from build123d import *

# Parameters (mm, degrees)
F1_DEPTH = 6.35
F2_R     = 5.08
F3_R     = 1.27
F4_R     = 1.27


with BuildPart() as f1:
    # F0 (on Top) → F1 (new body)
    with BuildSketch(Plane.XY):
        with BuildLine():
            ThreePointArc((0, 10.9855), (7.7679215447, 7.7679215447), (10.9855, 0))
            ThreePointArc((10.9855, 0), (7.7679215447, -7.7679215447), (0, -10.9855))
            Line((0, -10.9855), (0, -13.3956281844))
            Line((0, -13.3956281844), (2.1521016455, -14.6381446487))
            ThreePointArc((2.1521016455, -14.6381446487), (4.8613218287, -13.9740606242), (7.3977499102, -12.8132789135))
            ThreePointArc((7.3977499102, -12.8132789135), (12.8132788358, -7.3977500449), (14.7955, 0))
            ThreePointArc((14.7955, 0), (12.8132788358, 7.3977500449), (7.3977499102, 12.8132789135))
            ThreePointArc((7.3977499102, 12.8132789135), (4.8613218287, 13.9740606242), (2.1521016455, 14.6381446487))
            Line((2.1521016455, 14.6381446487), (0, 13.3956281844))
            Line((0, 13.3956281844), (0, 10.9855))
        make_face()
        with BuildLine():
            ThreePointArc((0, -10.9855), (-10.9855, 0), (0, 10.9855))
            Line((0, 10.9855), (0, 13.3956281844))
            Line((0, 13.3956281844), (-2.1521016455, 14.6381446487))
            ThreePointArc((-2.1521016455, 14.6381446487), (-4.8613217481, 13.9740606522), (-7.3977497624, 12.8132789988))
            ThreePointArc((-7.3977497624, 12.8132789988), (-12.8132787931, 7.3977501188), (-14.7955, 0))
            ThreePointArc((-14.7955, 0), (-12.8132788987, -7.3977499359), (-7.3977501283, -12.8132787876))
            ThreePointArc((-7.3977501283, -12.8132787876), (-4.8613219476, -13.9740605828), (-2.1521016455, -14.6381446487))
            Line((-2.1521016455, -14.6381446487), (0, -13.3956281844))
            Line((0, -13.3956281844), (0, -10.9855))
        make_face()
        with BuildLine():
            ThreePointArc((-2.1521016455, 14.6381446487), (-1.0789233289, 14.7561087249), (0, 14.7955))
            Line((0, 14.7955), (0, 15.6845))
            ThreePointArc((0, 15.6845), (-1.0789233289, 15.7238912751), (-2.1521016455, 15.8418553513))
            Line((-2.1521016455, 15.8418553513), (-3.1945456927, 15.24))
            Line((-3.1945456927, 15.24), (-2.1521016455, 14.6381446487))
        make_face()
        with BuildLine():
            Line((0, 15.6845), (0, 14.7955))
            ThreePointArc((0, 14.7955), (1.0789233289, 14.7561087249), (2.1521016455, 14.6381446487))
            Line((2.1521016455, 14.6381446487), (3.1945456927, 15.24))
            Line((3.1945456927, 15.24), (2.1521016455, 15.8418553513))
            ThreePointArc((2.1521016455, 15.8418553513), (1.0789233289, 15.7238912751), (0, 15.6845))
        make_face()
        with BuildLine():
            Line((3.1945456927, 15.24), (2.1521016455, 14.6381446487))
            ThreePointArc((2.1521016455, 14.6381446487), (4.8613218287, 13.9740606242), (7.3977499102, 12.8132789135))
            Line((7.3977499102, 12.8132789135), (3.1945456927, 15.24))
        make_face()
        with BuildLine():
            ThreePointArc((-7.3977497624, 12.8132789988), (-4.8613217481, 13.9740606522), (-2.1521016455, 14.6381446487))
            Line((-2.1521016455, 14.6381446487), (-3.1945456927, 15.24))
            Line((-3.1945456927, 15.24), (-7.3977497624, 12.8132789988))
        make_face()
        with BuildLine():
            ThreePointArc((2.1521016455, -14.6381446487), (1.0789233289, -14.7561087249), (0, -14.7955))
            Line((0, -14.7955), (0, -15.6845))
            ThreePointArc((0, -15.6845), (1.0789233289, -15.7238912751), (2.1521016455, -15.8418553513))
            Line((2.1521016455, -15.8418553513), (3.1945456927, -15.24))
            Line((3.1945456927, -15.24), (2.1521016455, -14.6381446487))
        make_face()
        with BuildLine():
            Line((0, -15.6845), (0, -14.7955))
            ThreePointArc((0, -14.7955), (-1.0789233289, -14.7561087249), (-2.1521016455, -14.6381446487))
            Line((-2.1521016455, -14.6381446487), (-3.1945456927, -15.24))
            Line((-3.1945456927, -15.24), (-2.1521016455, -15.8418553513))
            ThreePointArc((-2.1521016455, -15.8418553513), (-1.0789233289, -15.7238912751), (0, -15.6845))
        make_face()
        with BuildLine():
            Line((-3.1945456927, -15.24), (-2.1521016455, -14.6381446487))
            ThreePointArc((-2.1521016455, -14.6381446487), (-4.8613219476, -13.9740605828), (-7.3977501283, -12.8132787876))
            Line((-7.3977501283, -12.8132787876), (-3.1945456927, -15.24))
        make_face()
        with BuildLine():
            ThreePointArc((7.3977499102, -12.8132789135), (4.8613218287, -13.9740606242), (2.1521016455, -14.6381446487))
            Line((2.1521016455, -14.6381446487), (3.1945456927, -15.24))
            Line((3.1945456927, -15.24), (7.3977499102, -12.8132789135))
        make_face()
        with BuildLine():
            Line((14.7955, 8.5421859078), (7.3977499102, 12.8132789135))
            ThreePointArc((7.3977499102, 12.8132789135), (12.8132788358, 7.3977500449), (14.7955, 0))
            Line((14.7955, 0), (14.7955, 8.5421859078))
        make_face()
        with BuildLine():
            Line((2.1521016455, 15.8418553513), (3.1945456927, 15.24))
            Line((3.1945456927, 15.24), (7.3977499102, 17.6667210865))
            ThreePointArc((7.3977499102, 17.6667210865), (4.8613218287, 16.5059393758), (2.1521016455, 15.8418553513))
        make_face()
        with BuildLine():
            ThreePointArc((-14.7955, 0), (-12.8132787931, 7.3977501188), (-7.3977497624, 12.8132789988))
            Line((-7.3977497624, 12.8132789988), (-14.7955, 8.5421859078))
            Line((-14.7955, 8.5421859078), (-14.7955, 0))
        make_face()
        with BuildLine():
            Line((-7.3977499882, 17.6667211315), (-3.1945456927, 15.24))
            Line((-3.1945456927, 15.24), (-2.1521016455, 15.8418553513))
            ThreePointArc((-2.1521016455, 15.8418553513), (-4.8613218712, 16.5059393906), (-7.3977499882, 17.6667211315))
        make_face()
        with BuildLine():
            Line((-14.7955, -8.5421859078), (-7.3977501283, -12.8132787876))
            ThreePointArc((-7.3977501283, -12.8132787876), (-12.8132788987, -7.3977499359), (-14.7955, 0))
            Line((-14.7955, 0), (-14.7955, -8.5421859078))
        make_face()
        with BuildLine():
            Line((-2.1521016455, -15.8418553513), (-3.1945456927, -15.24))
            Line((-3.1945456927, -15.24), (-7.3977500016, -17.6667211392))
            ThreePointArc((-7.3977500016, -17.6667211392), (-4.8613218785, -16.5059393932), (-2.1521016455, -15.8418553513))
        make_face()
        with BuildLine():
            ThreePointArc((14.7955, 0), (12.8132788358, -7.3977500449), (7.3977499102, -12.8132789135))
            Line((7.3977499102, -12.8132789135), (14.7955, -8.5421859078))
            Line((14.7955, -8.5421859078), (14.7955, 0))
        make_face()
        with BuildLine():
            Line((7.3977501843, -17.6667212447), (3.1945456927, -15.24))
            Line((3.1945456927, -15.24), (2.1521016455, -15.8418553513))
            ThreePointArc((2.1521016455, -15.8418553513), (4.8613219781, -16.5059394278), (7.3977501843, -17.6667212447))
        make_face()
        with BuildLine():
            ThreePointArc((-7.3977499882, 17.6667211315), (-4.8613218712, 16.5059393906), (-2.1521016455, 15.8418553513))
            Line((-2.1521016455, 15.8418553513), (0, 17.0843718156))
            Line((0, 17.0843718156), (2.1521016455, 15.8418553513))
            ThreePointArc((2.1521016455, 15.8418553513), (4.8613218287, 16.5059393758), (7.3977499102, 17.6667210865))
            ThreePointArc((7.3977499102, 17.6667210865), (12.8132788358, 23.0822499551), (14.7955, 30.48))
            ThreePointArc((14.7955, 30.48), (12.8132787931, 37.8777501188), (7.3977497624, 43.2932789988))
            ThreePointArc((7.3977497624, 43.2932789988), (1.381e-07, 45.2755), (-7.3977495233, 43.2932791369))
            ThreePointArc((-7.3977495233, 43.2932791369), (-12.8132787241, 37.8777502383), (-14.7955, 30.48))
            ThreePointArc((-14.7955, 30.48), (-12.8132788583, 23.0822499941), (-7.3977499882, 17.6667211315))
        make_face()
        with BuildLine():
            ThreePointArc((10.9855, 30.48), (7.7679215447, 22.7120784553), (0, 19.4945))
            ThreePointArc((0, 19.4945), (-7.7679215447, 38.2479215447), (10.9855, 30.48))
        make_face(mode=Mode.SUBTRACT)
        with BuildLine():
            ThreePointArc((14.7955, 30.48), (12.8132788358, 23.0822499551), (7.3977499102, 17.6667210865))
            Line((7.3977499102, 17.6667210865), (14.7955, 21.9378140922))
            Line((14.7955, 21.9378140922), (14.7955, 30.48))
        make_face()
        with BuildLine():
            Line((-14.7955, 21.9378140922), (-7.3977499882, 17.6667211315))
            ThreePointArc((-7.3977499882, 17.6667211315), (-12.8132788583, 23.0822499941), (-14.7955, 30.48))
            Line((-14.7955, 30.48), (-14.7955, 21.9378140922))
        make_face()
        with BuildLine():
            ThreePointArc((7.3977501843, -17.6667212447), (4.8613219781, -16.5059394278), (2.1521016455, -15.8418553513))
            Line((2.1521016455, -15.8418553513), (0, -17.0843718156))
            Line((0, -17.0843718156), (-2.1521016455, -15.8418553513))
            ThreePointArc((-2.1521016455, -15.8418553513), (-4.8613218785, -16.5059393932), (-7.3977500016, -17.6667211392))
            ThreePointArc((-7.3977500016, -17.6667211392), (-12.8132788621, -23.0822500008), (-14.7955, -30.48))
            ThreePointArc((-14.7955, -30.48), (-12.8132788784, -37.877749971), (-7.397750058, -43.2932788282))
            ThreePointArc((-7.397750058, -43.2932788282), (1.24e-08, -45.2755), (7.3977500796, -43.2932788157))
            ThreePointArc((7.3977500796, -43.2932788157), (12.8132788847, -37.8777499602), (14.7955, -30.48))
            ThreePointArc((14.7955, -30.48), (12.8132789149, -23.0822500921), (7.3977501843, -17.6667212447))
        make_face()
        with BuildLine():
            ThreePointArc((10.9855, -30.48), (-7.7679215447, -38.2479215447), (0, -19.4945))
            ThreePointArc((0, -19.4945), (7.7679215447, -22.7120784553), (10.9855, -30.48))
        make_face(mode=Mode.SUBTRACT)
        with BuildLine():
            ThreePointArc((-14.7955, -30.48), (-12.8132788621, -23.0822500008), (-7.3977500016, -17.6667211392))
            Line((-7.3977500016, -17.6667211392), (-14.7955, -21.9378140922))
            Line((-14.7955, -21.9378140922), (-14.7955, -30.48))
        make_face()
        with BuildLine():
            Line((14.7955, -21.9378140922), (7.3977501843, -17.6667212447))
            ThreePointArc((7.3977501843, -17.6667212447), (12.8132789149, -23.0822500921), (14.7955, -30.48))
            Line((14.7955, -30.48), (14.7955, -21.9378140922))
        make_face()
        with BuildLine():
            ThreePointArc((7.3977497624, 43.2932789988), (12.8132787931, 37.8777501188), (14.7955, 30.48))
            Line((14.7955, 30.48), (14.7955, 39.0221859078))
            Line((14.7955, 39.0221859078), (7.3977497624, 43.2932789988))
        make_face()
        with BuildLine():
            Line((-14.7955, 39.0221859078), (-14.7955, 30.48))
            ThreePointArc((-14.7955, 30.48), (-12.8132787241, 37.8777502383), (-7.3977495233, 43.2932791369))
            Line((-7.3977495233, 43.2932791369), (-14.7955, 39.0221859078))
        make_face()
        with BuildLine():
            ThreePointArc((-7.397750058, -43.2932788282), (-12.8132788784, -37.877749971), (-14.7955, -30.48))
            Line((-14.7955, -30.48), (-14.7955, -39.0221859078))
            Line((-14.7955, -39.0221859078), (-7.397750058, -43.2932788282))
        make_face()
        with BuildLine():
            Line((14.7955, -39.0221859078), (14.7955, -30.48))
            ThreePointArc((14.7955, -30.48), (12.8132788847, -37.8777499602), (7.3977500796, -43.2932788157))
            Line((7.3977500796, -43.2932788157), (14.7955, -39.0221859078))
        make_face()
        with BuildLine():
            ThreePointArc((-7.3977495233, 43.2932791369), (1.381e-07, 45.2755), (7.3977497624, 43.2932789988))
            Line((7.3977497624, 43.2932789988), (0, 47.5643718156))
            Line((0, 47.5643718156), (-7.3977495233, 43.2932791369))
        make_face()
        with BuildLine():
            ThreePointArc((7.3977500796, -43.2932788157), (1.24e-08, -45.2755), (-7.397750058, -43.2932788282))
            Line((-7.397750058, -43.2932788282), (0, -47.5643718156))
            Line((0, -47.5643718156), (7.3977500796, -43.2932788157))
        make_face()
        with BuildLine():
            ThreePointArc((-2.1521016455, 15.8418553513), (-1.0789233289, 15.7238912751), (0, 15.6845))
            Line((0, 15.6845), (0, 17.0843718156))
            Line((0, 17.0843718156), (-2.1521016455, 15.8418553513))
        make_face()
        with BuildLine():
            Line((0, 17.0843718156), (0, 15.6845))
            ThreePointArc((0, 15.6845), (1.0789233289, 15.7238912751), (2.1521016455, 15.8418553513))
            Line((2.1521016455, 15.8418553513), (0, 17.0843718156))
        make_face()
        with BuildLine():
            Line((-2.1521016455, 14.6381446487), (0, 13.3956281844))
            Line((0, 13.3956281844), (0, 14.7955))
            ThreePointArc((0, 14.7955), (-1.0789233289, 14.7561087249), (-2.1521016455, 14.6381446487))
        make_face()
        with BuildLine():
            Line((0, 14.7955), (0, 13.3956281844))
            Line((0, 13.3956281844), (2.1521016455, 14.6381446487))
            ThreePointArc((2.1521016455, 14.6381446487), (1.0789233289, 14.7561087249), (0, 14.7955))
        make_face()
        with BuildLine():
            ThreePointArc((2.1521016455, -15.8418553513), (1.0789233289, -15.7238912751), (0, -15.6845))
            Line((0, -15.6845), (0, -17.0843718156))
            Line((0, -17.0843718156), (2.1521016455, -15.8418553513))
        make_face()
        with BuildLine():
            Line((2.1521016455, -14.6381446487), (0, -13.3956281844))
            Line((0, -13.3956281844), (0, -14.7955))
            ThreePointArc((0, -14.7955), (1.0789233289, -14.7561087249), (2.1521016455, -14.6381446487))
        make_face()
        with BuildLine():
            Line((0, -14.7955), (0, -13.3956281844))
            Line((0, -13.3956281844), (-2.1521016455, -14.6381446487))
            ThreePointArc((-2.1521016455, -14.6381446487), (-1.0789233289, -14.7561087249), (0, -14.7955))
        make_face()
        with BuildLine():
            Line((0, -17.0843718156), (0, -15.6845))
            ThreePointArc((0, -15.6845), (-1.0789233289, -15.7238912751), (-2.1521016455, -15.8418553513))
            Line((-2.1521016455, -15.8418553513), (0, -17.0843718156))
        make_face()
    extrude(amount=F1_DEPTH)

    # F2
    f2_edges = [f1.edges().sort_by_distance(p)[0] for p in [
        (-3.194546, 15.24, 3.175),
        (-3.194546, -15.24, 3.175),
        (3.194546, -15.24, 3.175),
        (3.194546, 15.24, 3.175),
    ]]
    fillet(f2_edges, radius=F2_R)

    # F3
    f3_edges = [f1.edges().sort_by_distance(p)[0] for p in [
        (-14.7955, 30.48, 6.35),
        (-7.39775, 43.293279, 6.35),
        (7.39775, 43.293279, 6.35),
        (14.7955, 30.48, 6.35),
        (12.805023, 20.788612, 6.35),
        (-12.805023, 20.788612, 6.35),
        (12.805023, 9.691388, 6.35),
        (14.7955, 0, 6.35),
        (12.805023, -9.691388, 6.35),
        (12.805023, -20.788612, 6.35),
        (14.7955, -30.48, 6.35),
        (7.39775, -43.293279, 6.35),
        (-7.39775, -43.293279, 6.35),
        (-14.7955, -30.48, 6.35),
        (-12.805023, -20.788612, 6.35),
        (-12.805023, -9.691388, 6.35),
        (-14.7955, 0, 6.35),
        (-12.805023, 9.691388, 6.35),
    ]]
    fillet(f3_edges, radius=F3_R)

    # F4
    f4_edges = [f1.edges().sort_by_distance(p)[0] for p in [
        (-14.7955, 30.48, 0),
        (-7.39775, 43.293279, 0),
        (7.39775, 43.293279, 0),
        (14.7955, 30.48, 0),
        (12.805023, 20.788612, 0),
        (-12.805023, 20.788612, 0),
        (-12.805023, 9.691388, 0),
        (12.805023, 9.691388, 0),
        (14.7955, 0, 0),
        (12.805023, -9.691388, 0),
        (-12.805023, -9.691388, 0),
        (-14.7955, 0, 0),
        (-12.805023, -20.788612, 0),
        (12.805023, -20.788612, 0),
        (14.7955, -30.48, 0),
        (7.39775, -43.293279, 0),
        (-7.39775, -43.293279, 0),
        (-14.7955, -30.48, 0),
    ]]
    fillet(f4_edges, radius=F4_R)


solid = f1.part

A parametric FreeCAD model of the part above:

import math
import FreeCAD as App
import Part
import Sketcher
from FreeCAD import Vector
Q = App.Units.Quantity


def edges_at(feature, points):
    """Names of the edges that pass closest to the given points."""
    edges = feature.Shape.Edges
    near = lambda p: min(range(len(edges)), key=lambda i: edges[i].distToShape(Part.Vertex(*p))[0])
    return sorted({f"Edge{near(p) + 1}" for p in points})

doc = App.newDocument("Part")
body = doc.addObject("PartDesign::Body", "Body")

# Sketch on XY plane
sketch1 = doc.addObject("Sketcher::SketchObject", "Sketch")
body.addObject(sketch1)
sketch1.AttachmentSupport = (doc.XY_Plane, [""])
sketch1.MapMode = "FlatFace"
sketch1.addGeometry([
    Part.LineSegment(Vector(14.8, -21.9, 0), Vector(7.4, -17.7, 0)),  # 0
    Part.LineSegment(Vector(7.4, -17.7, 0), Vector(3.2, -15.2, 0)),  # 1
    Part.LineSegment(Vector(3.2, -15.2, 0), Vector(7.4, -12.8, 0)),  # 2
    Part.LineSegment(Vector(7.4, -12.8, 0), Vector(14.8, -8.5, 0)),  # 3
    Part.LineSegment(Vector(14.8, -8.5, 0), Vector(14.8, 8.5, 0)),  # 4
    Part.LineSegment(Vector(14.8, 8.5, 0), Vector(7.4, 12.8, 0)),  # 5
    Part.LineSegment(Vector(7.4, 12.8, 0), Vector(3.2, 15.2, 0)),  # 6
    Part.LineSegment(Vector(3.2, 15.2, 0), Vector(7.4, 17.7, 0)),  # 7
    Part.LineSegment(Vector(7.4, 17.7, 0), Vector(14.8, 21.9, 0)),  # 8
    Part.LineSegment(Vector(14.8, 21.9, 0), Vector(14.8, 39, 0)),  # 9
    Part.LineSegment(Vector(14.8, 39, 0), Vector(7.4, 43.3, 0)),  # 10
    Part.LineSegment(Vector(7.4, 43.3, 0), Vector(0, 47.6, 0)),  # 11
    Part.LineSegment(Vector(0, 47.6, 0), Vector(-7.4, 43.3, 0)),  # 12
    Part.LineSegment(Vector(-7.4, 43.3, 0), Vector(-14.8, 39, 0)),  # 13
    Part.LineSegment(Vector(-14.8, 39, 0), Vector(-14.8, 21.9, 0)),  # 14
    Part.LineSegment(Vector(-14.8, 21.9, 0), Vector(-7.4, 17.7, 0)),  # 15
    Part.LineSegment(Vector(-7.4, 17.7, 0), Vector(-3.2, 15.2, 0)),  # 16
    Part.LineSegment(Vector(-3.2, 15.2, 0), Vector(-7.4, 12.8, 0)),  # 17
    Part.LineSegment(Vector(-7.4, 12.8, 0), Vector(-14.8, 8.5, 0)),  # 18
    Part.LineSegment(Vector(-14.8, 8.5, 0), Vector(-14.8, -8.5, 0)),  # 19
    Part.LineSegment(Vector(-14.8, -8.5, 0), Vector(-7.4, -12.8, 0)),  # 20
    Part.LineSegment(Vector(-7.4, -12.8, 0), Vector(-3.2, -15.2, 0)),  # 21
    Part.LineSegment(Vector(-3.2, -15.2, 0), Vector(-7.4, -17.7, 0)),  # 22
    Part.LineSegment(Vector(-7.4, -17.7, 0), Vector(-14.8, -21.9, 0)),  # 23
    Part.LineSegment(Vector(-14.8, -21.9, 0), Vector(-14.8, -39, 0)),  # 24
    Part.LineSegment(Vector(-14.8, -39, 0), Vector(-7.4, -43.3, 0)),  # 25
    Part.LineSegment(Vector(-7.4, -43.3, 0), Vector(0, -47.6, 0)),  # 26
    Part.LineSegment(Vector(0, -47.6, 0), Vector(7.4, -43.3, 0)),  # 27
    Part.LineSegment(Vector(7.4, -43.3, 0), Vector(14.8, -39, 0)),  # 28
    Part.LineSegment(Vector(14.8, -39, 0), Vector(14.8, -21.9, 0)),  # 29
    Part.ArcOfCircle(Part.Circle(Vector(0, 0, 0), Vector(0, 0, 1), 11), math.radians(-90), math.radians(0)),  # 30
    Part.ArcOfCircle(Part.Circle(Vector(0, 0, 0), Vector(0, 0, 1), 11), math.radians(90), math.radians(270)),  # 31
    Part.ArcOfCircle(Part.Circle(Vector(0, 0, 0), Vector(0, 0, 1), 11), math.radians(0), math.radians(90)),  # 32
    Part.ArcOfCircle(Part.Circle(Vector(0, -30.5, 0), Vector(0, 0, 1), 11), math.radians(0), math.radians(90)),  # 33
    Part.ArcOfCircle(Part.Circle(Vector(0, -30.5, 0), Vector(0, 0, 1), 11), math.radians(90), math.radians(360)),  # 34
    Part.ArcOfCircle(Part.Circle(Vector(0, 30.5, 0), Vector(0, 0, 1), 11), math.radians(0), math.radians(270)),  # 35
    Part.ArcOfCircle(Part.Circle(Vector(0, 30.5, 0), Vector(0, 0, 1), 11), math.radians(-90), math.radians(0)),  # 36
], False)
sketch1.addConstraint([
    Sketcher.Constraint("Coincident", 0, 2, 1, 1),
    Sketcher.Constraint("Coincident", 1, 2, 2, 1),
    Sketcher.Constraint("Coincident", 2, 2, 3, 1),
    Sketcher.Constraint("Coincident", 3, 2, 4, 1),
    Sketcher.Constraint("Coincident", 4, 2, 5, 1),
    Sketcher.Constraint("Coincident", 5, 2, 6, 1),
    Sketcher.Constraint("Coincident", 6, 2, 7, 1),
    Sketcher.Constraint("Coincident", 7, 2, 8, 1),
    Sketcher.Constraint("Coincident", 8, 2, 9, 1),
    Sketcher.Constraint("Coincident", 9, 2, 10, 1),
    Sketcher.Constraint("Coincident", 10, 2, 11, 1),
    Sketcher.Constraint("Coincident", 11, 2, 12, 1),
    Sketcher.Constraint("Coincident", 12, 2, 13, 1),
    Sketcher.Constraint("Coincident", 13, 2, 14, 1),
    Sketcher.Constraint("Coincident", 14, 2, 15, 1),
    Sketcher.Constraint("Coincident", 15, 2, 16, 1),
    Sketcher.Constraint("Coincident", 16, 2, 17, 1),
    Sketcher.Constraint("Coincident", 17, 2, 18, 1),
    Sketcher.Constraint("Coincident", 18, 2, 19, 1),
    Sketcher.Constraint("Coincident", 19, 2, 20, 1),
    Sketcher.Constraint("Coincident", 20, 2, 21, 1),
    Sketcher.Constraint("Coincident", 21, 2, 22, 1),
    Sketcher.Constraint("Coincident", 22, 2, 23, 1),
    Sketcher.Constraint("Coincident", 23, 2, 24, 1),
    Sketcher.Constraint("Coincident", 24, 2, 25, 1),
    Sketcher.Constraint("Coincident", 25, 2, 26, 1),
    Sketcher.Constraint("Coincident", 26, 2, 27, 1),
    Sketcher.Constraint("Coincident", 27, 2, 28, 1),
    Sketcher.Constraint("Coincident", 28, 2, 29, 1),
    Sketcher.Constraint("Coincident", 29, 2, 0, 1),
    Sketcher.Constraint("Tangent", 30, 1, 31, 2),
    Sketcher.Constraint("Tangent", 31, 1, 32, 2),
    Sketcher.Constraint("Tangent", 32, 1, 30, 2),
    Sketcher.Constraint("Tangent", 33, 1, 34, 2),
    Sketcher.Constraint("Coincident", 34, 1, 33, 2),
    Sketcher.Constraint("Tangent", 35, 1, 36, 2),
    Sketcher.Constraint("Coincident", 36, 1, 35, 2),
    Sketcher.Constraint("Vertical", 4),
    Sketcher.Constraint("Vertical", 9),
    Sketcher.Constraint("Vertical", 14),
    Sketcher.Constraint("Vertical", 19),
    Sketcher.Constraint("Vertical", 24),
    Sketcher.Constraint("Vertical", 29),
    Sketcher.Constraint("Coincident", 30, 3, -1, 1),
    Sketcher.Constraint("Equal", 32, 33),
    Sketcher.Constraint("Equal", 34, 35),
    Sketcher.Constraint("Symmetric", 33, 3, 35, 3, -1, 1),
    Sketcher.Constraint("Symmetric", 0, 2, 15, 2, -1, 1),
    Sketcher.Constraint("Symmetric", 1, 2, 16, 2, -1, 1),
    Sketcher.Constraint("Symmetric", 2, 2, 17, 2, -1, 1),
    Sketcher.Constraint("Symmetric", 3, 2, 18, 2, -1, 1),
    Sketcher.Constraint("Symmetric", 5, 2, 20, 2, -1, 1),
    Sketcher.Constraint("Symmetric", 6, 2, 21, 2, -1, 1),
    Sketcher.Constraint("Symmetric", 7, 2, 22, 2, -1, 1),
    Sketcher.Constraint("Symmetric", 8, 2, 23, 2, -1, 1),
    Sketcher.Constraint("Symmetric", 10, 2, 25, 2, -1, 1),
    Sketcher.Constraint("Symmetric", 11, 2, 26, 2, -1, 1),
    Sketcher.Constraint("Symmetric", 12, 2, 27, 2, -1, 1),
    Sketcher.Constraint("Symmetric", 13, 2, 28, 2, -1, 1),
    Sketcher.Constraint("Symmetric", 10, 2, 12, 2, -2),
    Sketcher.Constraint("Symmetric", 9, 2, 13, 2, -2),
    Sketcher.Constraint("Symmetric", 7, 2, 15, 2, -2),
    Sketcher.Constraint("Symmetric", 6, 2, 16, 2, -2),
    Sketcher.Constraint("Symmetric", 5, 2, 17, 2, -2),
    Sketcher.Constraint("Symmetric", 33, 1, 35, 1, -1),
    Sketcher.Constraint("PointOnObject", 11, 2, -2),
    Sketcher.Constraint("PointOnObject", 30, 1, -2),
    Sketcher.Constraint("PointOnObject", 31, 1, -2),
    Sketcher.Constraint("PointOnObject", 32, 1, -1),
    Sketcher.Constraint("PointOnObject", 34, 1, -2),
    Sketcher.Constraint("PointOnObject", 36, 1, -2),
    Sketcher.Constraint("Parallel", 0, 1),
    Sketcher.Constraint("Parallel", 2, 3),
    Sketcher.Constraint("Parallel", 1, 5),
    Sketcher.Constraint("Parallel", 5, 6),
    Sketcher.Constraint("Parallel", 7, 8),
    Sketcher.Constraint("Parallel", 6, 10),
    Sketcher.Constraint("Parallel", 10, 11),
    Sketcher.Constraint("Parallel", 11, 15),
    Sketcher.Constraint("Parallel", 16, 20),
    Sketcher.Constraint("Parallel", 21, 25),
    Sketcher.Constraint("Horizontal", 34, 3, 33, 1),
    Sketcher.Constraint("Vertical", 0, 2, 2, 2),
    Sketcher.Constraint("Vertical", 4, 2, 8, 2),
    Sketcher.Constraint("Vertical", 7, 2, 10, 2),
    Sketcher.Constraint("Equal", 4, 9),
    Sketcher.Constraint("Equal", 10, 11),
    Sketcher.Constraint("Angle", 0, Q("150 deg")),
    Sketcher.Constraint("DistanceY", 33, 3, -1, 1, Q("1.2 in")),
    Sketcher.Constraint("DistanceY", 1, 2, -1, 1, Q("0.6 in")),
    Sketcher.Constraint("Radius", 30, Q("0.4325 in")),
    Sketcher.Constraint("DistanceX", 32, 1, 3, 2, Q("0.15 in")),
    Sketcher.Constraint("DistanceY", 4, 1, 4, 2, 17.084372),
])
pad1 = doc.addObject("PartDesign::Pad", "Pad")
body.addObject(pad1)
pad1.Profile = sketch1
pad1.Length = Q("0.25 in")
doc.recompute()

fillet = doc.addObject("PartDesign::Fillet", "Fillet")
body.addObject(fillet)
fillet.Base = (pad1, edges_at(pad1, [
    (-3.195, 15.24, 3.175),
    (-3.195, -15.24, 3.175),
    (3.195, -15.24, 3.175),
    (3.195, 15.24, 3.175),
]))
fillet.Radius = Q("0.2 in")
doc.recompute()

fillet2 = doc.addObject("PartDesign::Fillet", "Fillet001")
body.addObject(fillet2)
fillet2.Base = (fillet, edges_at(fillet, [
    (-14.796, 30.48, 6.35),
    (-11.097, 41.158, 6.35),
    (11.097, 41.158, 6.35),
    (14.796, 30.48, 6.35),
    (12.805, 20.789, 6.35),
    (-12.805, 20.789, 6.35),
    (12.805, 9.691, 6.35),
    (14.796, 0, 6.35),
    (12.805, -9.691, 6.35),
    (12.805, -20.789, 6.35),
    (14.796, -30.48, 6.35),
    (3.699, -45.429, 6.35),
    (-3.699, -45.429, 6.35),
    (-14.796, -30.48, 6.35),
    (-12.805, -20.789, 6.35),
    (-12.805, -9.691, 6.35),
    (-14.796, 0, 6.35),
    (-12.805, 9.691, 6.35),
]))
fillet2.Radius = Q("0.05 in")
doc.recompute()

fillet3 = doc.addObject("PartDesign::Fillet", "Fillet002")
body.addObject(fillet3)
fillet3.Base = (fillet2, edges_at(fillet2, [
    (-14.796, 30.48, 0),
    (-11.097, 41.158, 0),
    (11.097, 41.158, 0),
    (14.796, 30.48, 0),
    (12.805, 20.789, 0),
    (-12.805, 20.789, 0),
    (-12.805, 9.691, 0),
    (12.805, 9.691, 0),
    (14.796, 0, 0),
    (12.805, -9.691, 0),
    (-12.805, -9.691, 0),
    (-14.796, 0, 0),
    (-12.805, -20.789, 0),
    (12.805, -20.789, 0),
    (14.796, -30.48, 0),
    (3.699, -45.429, 0),
    (-3.699, -45.429, 0),
    (-14.796, -30.48, 0),
]))
fillet3.Radius = Q("0.05 in")

doc.recompute()
